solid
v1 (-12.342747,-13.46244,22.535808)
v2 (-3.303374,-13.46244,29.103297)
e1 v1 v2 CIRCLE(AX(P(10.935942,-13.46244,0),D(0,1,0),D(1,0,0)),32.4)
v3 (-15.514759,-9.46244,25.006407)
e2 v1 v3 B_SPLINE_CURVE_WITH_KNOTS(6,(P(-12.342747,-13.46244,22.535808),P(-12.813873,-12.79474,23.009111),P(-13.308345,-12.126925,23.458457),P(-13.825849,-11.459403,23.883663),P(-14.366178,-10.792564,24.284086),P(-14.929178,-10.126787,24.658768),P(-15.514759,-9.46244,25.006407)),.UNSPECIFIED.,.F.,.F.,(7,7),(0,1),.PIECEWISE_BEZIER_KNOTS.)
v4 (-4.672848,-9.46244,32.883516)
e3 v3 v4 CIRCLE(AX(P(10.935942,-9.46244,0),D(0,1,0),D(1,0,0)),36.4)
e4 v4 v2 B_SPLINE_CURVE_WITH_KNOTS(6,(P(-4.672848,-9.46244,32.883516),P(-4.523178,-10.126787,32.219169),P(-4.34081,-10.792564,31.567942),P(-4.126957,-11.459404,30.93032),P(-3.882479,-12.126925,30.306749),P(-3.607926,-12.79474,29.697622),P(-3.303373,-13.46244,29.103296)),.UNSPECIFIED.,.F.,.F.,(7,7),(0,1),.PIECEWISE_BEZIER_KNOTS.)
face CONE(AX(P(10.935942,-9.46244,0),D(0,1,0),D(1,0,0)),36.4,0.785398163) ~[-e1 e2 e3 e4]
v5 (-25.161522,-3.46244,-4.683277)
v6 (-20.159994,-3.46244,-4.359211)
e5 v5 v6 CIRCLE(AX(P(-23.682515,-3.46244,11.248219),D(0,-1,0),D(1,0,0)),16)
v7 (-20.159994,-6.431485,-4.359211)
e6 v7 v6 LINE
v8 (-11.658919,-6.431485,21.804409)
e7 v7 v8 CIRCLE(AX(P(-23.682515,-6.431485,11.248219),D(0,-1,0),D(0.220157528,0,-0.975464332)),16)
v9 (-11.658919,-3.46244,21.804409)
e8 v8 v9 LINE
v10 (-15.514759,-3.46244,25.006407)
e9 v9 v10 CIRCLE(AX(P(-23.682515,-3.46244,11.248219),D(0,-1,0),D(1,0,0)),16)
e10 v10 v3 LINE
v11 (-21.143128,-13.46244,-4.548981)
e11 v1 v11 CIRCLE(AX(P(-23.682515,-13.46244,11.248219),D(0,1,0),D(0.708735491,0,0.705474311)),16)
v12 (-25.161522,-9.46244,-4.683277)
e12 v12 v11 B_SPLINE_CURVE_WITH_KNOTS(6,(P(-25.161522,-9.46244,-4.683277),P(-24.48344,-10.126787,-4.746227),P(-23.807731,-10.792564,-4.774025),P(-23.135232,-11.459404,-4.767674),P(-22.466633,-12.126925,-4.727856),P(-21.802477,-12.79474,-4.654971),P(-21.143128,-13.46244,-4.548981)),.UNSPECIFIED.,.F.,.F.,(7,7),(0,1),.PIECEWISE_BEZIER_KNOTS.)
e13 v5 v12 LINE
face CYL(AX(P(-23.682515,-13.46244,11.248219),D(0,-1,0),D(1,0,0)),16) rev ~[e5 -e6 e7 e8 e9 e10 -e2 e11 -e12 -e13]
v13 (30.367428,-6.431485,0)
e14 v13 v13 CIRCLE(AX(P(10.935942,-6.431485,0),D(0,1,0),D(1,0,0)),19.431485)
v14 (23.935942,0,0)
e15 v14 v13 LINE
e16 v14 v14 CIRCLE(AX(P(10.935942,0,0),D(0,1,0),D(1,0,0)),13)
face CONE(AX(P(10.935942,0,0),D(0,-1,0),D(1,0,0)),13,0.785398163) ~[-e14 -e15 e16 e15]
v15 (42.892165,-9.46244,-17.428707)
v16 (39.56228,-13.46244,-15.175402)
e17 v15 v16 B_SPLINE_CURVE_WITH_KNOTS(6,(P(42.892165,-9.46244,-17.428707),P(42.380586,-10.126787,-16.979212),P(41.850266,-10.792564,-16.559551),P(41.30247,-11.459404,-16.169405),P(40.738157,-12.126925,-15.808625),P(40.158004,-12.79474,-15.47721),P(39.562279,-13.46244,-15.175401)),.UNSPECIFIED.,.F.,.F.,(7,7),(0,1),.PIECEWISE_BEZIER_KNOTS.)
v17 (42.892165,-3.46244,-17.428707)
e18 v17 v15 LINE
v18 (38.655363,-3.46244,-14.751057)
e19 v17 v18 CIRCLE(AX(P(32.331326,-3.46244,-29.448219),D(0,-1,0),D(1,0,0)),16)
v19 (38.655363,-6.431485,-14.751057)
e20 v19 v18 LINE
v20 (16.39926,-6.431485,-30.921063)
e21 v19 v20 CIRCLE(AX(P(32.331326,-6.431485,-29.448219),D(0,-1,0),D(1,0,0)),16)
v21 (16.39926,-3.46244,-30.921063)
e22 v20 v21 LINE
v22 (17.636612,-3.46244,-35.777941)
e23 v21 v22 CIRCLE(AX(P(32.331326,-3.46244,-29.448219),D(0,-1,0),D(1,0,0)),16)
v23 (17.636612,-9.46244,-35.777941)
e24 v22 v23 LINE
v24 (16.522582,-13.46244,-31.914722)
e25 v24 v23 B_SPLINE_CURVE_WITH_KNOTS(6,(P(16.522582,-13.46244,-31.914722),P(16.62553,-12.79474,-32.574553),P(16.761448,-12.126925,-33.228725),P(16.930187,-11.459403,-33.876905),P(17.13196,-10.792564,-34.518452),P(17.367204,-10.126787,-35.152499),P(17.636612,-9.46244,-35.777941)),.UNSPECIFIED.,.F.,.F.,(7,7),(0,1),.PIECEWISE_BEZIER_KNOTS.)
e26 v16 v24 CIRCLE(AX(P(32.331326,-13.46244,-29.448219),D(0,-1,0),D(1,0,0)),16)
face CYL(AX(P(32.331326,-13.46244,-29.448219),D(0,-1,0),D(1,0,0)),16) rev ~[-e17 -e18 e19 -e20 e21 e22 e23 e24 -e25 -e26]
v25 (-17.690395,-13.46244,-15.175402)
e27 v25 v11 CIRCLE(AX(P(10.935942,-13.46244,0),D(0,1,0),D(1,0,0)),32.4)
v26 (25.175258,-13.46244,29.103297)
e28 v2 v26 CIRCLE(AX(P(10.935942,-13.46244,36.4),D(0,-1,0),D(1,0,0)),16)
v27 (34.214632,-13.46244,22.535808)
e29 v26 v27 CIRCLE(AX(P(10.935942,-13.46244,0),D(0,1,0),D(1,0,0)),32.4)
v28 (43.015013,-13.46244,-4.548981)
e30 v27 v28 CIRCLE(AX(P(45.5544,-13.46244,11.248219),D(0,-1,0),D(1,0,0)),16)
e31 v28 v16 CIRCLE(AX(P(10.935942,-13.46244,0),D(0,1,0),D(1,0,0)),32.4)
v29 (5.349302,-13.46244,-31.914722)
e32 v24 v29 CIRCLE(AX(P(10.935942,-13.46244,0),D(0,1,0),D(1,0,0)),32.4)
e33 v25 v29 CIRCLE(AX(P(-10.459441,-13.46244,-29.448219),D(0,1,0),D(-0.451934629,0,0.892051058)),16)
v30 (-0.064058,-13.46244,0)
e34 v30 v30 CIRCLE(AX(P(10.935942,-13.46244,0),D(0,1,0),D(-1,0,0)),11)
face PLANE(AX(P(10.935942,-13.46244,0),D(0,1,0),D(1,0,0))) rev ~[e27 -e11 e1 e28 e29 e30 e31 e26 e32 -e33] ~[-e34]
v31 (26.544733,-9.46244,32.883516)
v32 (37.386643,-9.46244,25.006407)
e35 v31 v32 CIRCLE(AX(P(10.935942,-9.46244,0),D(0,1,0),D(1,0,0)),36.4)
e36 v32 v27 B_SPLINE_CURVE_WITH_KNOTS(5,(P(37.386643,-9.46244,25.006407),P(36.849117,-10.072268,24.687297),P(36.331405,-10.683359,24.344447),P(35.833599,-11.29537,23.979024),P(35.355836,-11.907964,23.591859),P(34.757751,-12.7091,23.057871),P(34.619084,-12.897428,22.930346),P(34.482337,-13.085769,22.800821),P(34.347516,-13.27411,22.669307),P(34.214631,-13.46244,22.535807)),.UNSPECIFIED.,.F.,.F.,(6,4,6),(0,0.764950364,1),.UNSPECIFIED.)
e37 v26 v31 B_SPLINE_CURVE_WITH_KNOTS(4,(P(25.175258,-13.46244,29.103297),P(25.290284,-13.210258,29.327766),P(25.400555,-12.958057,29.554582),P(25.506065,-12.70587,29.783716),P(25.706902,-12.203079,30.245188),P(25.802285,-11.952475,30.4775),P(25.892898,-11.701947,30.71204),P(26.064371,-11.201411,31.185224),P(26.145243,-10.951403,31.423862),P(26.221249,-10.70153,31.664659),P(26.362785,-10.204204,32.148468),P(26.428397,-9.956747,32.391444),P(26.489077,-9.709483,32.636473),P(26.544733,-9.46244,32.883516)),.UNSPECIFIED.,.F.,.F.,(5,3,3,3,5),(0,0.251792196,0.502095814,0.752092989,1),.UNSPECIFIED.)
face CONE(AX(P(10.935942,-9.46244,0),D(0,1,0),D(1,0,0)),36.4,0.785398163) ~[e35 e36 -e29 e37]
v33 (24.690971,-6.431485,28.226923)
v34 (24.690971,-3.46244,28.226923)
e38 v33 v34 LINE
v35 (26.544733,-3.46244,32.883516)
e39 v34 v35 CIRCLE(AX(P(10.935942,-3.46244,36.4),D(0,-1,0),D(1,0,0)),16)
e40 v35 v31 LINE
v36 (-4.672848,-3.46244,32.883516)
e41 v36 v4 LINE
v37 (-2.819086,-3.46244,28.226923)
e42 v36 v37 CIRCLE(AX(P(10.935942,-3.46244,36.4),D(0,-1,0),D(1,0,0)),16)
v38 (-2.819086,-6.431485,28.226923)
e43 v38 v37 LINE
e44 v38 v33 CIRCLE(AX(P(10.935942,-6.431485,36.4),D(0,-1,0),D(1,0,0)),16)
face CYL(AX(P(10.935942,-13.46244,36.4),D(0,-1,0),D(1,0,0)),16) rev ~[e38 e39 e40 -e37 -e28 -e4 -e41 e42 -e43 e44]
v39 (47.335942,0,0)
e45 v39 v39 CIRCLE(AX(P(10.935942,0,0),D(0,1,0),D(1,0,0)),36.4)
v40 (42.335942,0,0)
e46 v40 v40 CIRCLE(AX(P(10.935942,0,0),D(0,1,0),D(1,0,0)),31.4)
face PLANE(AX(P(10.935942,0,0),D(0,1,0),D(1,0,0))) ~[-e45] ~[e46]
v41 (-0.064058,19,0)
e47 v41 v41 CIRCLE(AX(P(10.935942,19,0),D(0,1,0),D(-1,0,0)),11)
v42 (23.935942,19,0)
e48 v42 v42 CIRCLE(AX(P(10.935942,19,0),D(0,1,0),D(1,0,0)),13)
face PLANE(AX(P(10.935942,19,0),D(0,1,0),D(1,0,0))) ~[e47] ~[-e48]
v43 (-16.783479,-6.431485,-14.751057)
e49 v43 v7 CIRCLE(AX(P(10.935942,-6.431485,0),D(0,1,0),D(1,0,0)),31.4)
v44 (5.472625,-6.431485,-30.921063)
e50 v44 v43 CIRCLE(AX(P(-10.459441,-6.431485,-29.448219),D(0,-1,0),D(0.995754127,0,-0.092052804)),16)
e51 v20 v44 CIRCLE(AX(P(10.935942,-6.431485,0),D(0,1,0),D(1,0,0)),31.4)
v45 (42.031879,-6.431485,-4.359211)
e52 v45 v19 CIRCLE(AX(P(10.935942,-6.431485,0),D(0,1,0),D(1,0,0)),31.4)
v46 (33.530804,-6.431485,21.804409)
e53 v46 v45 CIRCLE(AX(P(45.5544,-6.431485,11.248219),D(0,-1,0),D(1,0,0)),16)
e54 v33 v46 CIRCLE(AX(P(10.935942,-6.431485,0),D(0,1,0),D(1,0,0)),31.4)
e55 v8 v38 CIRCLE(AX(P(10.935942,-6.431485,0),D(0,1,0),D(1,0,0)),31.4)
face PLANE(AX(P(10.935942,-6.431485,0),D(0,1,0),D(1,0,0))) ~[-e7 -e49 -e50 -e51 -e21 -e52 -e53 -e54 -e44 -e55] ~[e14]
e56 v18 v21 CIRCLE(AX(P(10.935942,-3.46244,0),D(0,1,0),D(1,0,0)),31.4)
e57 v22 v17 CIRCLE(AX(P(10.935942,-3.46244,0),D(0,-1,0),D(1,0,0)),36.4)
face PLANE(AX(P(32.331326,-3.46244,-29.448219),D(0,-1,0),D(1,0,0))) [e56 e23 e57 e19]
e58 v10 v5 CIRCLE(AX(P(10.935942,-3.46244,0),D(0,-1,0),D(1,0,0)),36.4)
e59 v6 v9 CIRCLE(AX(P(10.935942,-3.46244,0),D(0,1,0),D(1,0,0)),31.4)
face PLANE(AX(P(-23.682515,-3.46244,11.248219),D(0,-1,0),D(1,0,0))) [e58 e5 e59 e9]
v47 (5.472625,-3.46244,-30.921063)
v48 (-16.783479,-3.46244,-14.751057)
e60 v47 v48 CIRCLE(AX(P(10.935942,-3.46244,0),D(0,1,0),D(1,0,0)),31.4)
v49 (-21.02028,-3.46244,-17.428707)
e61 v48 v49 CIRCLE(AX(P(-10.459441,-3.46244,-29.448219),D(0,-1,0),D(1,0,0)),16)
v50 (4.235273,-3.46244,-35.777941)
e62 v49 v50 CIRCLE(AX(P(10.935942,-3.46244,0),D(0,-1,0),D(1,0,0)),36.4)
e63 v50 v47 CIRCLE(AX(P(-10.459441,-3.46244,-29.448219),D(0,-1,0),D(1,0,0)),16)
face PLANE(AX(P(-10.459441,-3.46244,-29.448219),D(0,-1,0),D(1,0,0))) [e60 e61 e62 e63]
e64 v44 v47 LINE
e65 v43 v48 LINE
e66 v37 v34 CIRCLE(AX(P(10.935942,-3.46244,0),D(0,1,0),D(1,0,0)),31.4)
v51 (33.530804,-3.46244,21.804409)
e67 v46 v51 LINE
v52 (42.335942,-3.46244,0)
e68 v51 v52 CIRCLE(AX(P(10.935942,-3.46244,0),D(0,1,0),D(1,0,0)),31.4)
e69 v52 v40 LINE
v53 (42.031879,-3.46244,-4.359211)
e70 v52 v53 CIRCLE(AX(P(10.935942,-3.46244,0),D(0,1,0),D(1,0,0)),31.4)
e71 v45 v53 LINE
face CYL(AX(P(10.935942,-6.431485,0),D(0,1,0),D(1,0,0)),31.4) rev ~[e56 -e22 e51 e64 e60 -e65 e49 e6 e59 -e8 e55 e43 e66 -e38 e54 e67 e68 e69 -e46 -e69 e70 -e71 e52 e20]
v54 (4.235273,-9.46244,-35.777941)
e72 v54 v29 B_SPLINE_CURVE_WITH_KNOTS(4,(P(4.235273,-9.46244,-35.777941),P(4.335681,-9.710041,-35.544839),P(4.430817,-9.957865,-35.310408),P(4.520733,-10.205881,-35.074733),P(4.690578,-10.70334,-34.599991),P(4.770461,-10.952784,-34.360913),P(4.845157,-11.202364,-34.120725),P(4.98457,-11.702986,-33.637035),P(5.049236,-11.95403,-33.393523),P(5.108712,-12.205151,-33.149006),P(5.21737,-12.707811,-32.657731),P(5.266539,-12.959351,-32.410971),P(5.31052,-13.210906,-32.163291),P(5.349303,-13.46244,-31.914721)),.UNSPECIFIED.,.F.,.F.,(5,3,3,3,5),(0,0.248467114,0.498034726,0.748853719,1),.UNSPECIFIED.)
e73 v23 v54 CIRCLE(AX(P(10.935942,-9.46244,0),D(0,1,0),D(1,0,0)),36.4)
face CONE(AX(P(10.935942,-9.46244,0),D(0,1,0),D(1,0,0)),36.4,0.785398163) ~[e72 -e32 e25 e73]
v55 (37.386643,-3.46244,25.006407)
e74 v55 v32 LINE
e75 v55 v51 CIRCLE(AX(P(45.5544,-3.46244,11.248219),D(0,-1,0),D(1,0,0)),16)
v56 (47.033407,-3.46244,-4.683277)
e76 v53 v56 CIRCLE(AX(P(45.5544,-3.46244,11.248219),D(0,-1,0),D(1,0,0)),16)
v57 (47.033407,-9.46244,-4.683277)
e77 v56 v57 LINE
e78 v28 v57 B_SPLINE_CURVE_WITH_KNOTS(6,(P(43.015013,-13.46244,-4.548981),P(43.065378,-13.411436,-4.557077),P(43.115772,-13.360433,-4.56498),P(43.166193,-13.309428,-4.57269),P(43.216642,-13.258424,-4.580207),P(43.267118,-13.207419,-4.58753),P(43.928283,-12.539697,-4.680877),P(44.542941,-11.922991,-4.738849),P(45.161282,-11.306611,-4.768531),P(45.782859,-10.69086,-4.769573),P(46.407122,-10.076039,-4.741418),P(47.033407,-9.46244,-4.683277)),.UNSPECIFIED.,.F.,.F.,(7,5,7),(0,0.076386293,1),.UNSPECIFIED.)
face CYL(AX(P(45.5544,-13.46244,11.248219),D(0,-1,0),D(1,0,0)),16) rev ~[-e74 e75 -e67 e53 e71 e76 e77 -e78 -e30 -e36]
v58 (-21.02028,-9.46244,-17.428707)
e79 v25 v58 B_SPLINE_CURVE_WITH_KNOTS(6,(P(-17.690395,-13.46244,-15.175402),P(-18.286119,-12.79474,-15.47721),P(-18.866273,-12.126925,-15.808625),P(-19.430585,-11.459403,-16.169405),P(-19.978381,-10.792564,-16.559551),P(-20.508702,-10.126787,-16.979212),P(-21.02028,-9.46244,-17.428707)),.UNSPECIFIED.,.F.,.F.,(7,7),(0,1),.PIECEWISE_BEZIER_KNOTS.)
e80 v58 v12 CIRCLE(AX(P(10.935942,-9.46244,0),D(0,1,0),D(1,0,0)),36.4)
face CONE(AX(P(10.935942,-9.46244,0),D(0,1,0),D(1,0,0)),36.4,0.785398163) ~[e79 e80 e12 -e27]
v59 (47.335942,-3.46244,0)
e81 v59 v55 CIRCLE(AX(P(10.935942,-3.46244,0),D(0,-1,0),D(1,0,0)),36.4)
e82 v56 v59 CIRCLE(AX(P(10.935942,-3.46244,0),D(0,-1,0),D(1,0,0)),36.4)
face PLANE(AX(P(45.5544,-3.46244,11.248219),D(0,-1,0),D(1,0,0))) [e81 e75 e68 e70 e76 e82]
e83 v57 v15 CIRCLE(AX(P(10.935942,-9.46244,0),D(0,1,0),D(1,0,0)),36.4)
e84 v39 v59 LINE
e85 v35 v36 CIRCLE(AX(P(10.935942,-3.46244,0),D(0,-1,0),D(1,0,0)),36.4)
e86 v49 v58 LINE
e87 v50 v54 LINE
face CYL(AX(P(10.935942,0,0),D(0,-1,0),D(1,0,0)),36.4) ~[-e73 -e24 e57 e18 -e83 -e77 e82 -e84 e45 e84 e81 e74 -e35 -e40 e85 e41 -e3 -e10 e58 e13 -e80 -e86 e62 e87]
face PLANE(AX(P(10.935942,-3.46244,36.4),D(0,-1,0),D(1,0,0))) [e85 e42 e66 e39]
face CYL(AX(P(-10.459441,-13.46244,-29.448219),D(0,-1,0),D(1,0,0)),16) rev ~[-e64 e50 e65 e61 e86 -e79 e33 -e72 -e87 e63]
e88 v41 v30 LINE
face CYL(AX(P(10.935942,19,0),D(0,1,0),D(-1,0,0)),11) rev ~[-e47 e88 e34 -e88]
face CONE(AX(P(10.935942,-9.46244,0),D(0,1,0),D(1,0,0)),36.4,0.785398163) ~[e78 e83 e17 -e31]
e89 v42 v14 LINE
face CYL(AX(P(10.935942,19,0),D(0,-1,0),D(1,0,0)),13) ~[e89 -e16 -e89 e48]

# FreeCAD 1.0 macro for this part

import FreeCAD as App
import Part
import Sketcher
from FreeCAD import Vector
Q = App.Units.Quantity

doc = App.newDocument("Part")
body = doc.addObject("PartDesign::Body", "Body")

sketch1 = doc.addObject("Sketcher::SketchObject", "Sketch")
body.addObject(sketch1)
sketch1.AttachmentSupport = (doc.XY_Plane, [""])
sketch1.MapMode = "FlatFace"
sketch1.addGeometry([
    Part.LineSegment(Vector(11, 19, 0), Vector(-2, 19, 0)),
    Part.LineSegment(Vector(-2, 19, 0), Vector(-2, 0, 0)),
    Part.LineSegment(Vector(-2, 0, 0), Vector(-8, -6, 0)),
    Part.LineSegment(Vector(-8, -6, 0), Vector(-20, -6, 0)),
    Part.LineSegment(Vector(-20, -6, 0), Vector(-20, 0, 0)),
    Part.LineSegment(Vector(-20, 0, 0), Vector(-25, 0, 0)),
    Part.LineSegment(Vector(-25, 0, 0), Vector(-25, -9, 0)),
    Part.LineSegment(Vector(-25, -9, 0), Vector(-21, -13, 0)),
    Part.LineSegment(Vector(-21, -13, 0), Vector(11, -13, 0)),
    Part.LineSegment(Vector(11, -13, 0), Vector(11, 19, 0)),
], False)
sketch1.addGeometry(Part.LineSegment(Vector(11, -13, 0), Vector(11, 19, 0)), True)
sketch1.addConstraint([
    Sketcher.Constraint("Coincident", 0, 2, 1, 1),
    Sketcher.Constraint("Coincident", 1, 2, 2, 1),
    Sketcher.Constraint("Coincident", 2, 2, 3, 1),
    Sketcher.Constraint("Coincident", 3, 2, 4, 1),
    Sketcher.Constraint("Coincident", 4, 2, 5, 1),
    Sketcher.Constraint("Coincident", 5, 2, 6, 1),
    Sketcher.Constraint("Coincident", 6, 2, 7, 1),
    Sketcher.Constraint("Coincident", 7, 2, 8, 1),
    Sketcher.Constraint("Coincident", 8, 2, 9, 1),
    Sketcher.Constraint("Coincident", 9, 2, 0, 1),
    Sketcher.Constraint("Horizontal", 0),
    Sketcher.Constraint("Vertical", 1),
    Sketcher.Constraint("Horizontal", 3),
    Sketcher.Constraint("Vertical", 4),
    Sketcher.Constraint("Horizontal", 5),
    Sketcher.Constraint("Vertical", 6),
    Sketcher.Constraint("Horizontal", 8),
    Sketcher.Constraint("Vertical", 9),
    Sketcher.Constraint("Vertical", 10),
    Sketcher.Constraint("Coincident", 10, 1, 8, 2),
    Sketcher.Constraint("PointOnObject", 1, 2, -1),
    Sketcher.Constraint("PointOnObject", 4, 2, -1),
    Sketcher.Constraint("Perpendicular", 2, 7),
    Sketcher.Constraint("Horizontal", 0, 2, 10, 2),
    Sketcher.Constraint("DistanceX", 0, 2, 0, 1, 13.0),
    Sketcher.Constraint("DistanceX", 5, 2, 5, 1, 5.0),
    Sketcher.Constraint("DistanceY", 1, 2, 1, 1, 19.0),
    Sketcher.Constraint("Angle", 2, Q("-135 deg")),
    Sketcher.Constraint("DistanceX", 8, 1, 8, 2, 32.4),
    Sketcher.Constraint("DistanceX", 6, 2, 7, 2, 4.0),
    Sketcher.Constraint("DistanceY", 6, 2, 6, 1, 9.46244),
    Sketcher.Constraint("DistanceX", 3, 2, 3, 1, 11.968515),
    Sketcher.Constraint("DistanceX", 0, 2, -1, 1, 2.064058),
])
revolution = doc.addObject("PartDesign::Revolution", "Revolution")
body.addObject(revolution)
revolution.Profile = sketch1
revolution.ReferenceAxis = (sketch1, ["Axis0"])
revolution.Angle = 360

sketch2 = doc.addObject("Sketcher::SketchObject", "Sketch001")
body.addObject(sketch2)
sketch2.AttachmentSupport = (doc.XZ_Plane, [""])
sketch2.MapMode = "FlatFace"
sketch2.AttachmentOffset = App.Placement(Vector(0, 0, -19), App.Rotation())
sketch2.addGeometry(Part.Circle(Vector(11, 0, 0), Vector(0, 0, 1), 11), False)
sketch2.addConstraint([
    Sketcher.Constraint("PointOnObject", 0, 3, -1),
    Sketcher.Constraint("Diameter", 0, 22.0),
    Sketcher.Constraint("DistanceX", -1, 1, 0, 3, 10.935942),
])
pocket1 = doc.addObject("PartDesign::Pocket", "Pocket")
body.addObject(pocket1)
pocket1.Profile = sketch2
pocket1.Type = "UpToFirst"
pocket1.Reversed = True

sketch3 = doc.addObject("Sketcher::SketchObject", "Sketch002")
body.addObject(sketch3)
sketch3.AttachmentSupport = (doc.XZ_Plane, [""])
sketch3.MapMode = "FlatFace"
sketch3.AttachmentOffset = App.Placement(Vector(0, 0, 13.46244), App.Rotation())
sketch3.addGeometry([
    Part.Circle(Vector(11, 36, 0), Vector(0, 0, 1), 16),
    Part.Circle(Vector(46, 11, 0), Vector(0, 0, 1), 16),
    Part.Circle(Vector(32, -29, 0), Vector(0, 0, 1), 16),
    Part.Circle(Vector(-10, -29, 0), Vector(0, 0, 1), 16),
    Part.Circle(Vector(-24, 11, 0), Vector(0, 0, 1), 16),
], False)
sketch3.addConstraint([
    Sketcher.Constraint("Equal", 0, 1),
    Sketcher.Constraint("Equal", 1, 2),
    Sketcher.Constraint("Equal", 2, 3),
    Sketcher.Constraint("Equal", 3, 4),
    Sketcher.Constraint("Horizontal", 2, 3, 3, 3),
    Sketcher.Constraint("Horizontal", 1, 3, 4, 3),
    Sketcher.Constraint("Diameter", 0, 32.0),
    Sketcher.Constraint("DistanceY", -1, 1, 0, 3, 36.4),
    Sketcher.Constraint("DistanceX", -1, 1, 1, 3, 45.5544),
    Sketcher.Constraint("DistanceY", -1, 1, 1, 3, 11.248219),
    Sketcher.Constraint("DistanceY", 2, 3, -1, 1, 29.448219),
    Sketcher.Constraint("DistanceX", 3, 3, -1, 1, 10.459441),
    Sketcher.Constraint("DistanceX", 4, 3, 2, 3, 56.01384),
    Sketcher.Constraint("DistanceX", -1, 1, 0, 3, 10.935942),
    Sketcher.Constraint("DistanceX", -1, 1, 2, 3, 32.331326),
])
pocket2 = doc.addObject("PartDesign::Pocket", "Pocket001")
body.addObject(pocket2)
pocket2.Profile = sketch3
pocket2.Length = 10

doc.recompute()
